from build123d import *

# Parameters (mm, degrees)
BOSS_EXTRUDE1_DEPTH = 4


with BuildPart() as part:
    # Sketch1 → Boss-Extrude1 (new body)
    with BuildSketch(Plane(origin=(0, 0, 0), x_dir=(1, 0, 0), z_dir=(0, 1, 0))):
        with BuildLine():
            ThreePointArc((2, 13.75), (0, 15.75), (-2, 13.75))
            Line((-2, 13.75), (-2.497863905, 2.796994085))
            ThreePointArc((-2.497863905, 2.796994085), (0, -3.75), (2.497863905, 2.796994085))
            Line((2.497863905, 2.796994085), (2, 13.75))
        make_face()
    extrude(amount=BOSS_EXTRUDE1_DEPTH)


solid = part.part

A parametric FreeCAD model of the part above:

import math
import FreeCAD as App
import Part
import Sketcher
from FreeCAD import Vector

doc = App.newDocument("Part")
body = doc.addObject("PartDesign::Body", "Body")

# Sketch on XZ plane
sketch1 = body.newObject("Sketcher::SketchObject", "Sketch")
sketch1.AttachmentSupport = (doc.getObject("XZ_Plane"), [""])
sketch1.MapMode = "FlatFace"
sketch1.addGeometry([
    Part.ArcOfCircle(Part.Circle(Vector(0, -13.8, 0), Vector(0, 0, 1), 2), math.radians(180), math.radians(360)),
    Part.LineSegment(Vector(-2, -13.8, 0), Vector(-2.5, -2.8, 0)),
    Part.ArcOfCircle(Part.Circle(Vector(0, 0, 0), Vector(0, 0, 1), 3.8), math.radians(-48), math.radians(228)),
    Part.LineSegment(Vector(2.5, -2.8, 0), Vector(2, -13.8, 0)),
], False)
sketch1.addConstraint([
    Sketcher.Constraint("Coincident", 0, 1, 1, 1),
    Sketcher.Constraint("Coincident", 1, 2, 2, 2),
    Sketcher.Constraint("Coincident", 2, 1, 3, 1),
    Sketcher.Constraint("Coincident", 3, 2, 0, 2),
    Sketcher.Constraint("Coincident", 2, 3, -1, 1),
    Sketcher.Constraint("Symmetric", 0, 1, 3, 2, -2),
    Sketcher.Constraint("Horizontal", 1, 2, 2, 1),
    Sketcher.Constraint("Radius", 0, 2.0),
    Sketcher.Constraint("Radius", 2, 3.75),
    Sketcher.Constraint("DistanceY", 0, 3, -1, 1, 13.75),
    Sketcher.Constraint("DistanceY", 0, 1, -1, 1, 13.75),
    Sketcher.Constraint("Distance", 1, 10.964315),
])
pad1 = body.newObject("PartDesign::Pad", "Pad")
pad1.Profile = sketch1
pad1.Length = 4
pad1.Reversed = True

doc.recompute()
